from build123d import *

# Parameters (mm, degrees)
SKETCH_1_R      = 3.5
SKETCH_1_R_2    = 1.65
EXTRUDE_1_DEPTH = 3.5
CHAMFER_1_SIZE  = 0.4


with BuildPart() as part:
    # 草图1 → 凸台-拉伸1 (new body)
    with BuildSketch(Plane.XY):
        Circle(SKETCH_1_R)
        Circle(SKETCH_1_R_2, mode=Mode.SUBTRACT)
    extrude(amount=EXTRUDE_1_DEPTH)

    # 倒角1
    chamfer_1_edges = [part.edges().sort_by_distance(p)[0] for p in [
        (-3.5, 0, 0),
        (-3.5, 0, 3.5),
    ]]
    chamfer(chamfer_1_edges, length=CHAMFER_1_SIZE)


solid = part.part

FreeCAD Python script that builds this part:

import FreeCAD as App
import Part
import Sketcher

V = App.Vector
Q = App.Units.Quantity


def edges_at(feature, points):
    """Names of the edges that pass closest to the given points."""
    edges = feature.Shape.Edges
    near = lambda p: min(range(len(edges)), key=lambda i: edges[i].distToShape(Part.Vertex(*p))[0])
    return sorted({f"Edge{near(p) + 1}" for p in points})

doc = App.newDocument("Part")
body = doc.addObject("PartDesign::Body", "Body")

sketch1 = body.newObject("Sketcher::SketchObject", "Sketch")
sketch1.AttachmentSupport = (doc.getObject("XY_Plane"), [""])
sketch1.MapMode = "FlatFace"
sketch1.addGeometry(Part.Circle(V(0, 0, 0), V(0, 0, 1), 3.5), False)
sketch1.addGeometry(Part.Circle(V(0, 0, 0), V(0, 0, 1), 1.6), False)
sketch1.addConstraint(Sketcher.Constraint("Coincident", 0, 3, -1, 1))
sketch1.addConstraint(Sketcher.Constraint("Coincident", 1, 3, -1, 1))
sketch1.addConstraint(Sketcher.Constraint("Diameter", 0, Q("7 mm")))
sketch1.addConstraint(Sketcher.Constraint("Diameter", 1, Q("3.3 mm")))
pad1 = body.newObject("PartDesign::Pad", "Pad")
pad1.Profile = sketch1
pad1.Length = 3.5
doc.recompute()

chamfer = body.newObject("PartDesign::Chamfer", "Chamfer")
chamfer.Base = (pad1, edges_at(pad1, [(-3.5, 0, 0), (-3.5, 0, 3.5)]))
chamfer.Size = 0.4

doc.recompute()
